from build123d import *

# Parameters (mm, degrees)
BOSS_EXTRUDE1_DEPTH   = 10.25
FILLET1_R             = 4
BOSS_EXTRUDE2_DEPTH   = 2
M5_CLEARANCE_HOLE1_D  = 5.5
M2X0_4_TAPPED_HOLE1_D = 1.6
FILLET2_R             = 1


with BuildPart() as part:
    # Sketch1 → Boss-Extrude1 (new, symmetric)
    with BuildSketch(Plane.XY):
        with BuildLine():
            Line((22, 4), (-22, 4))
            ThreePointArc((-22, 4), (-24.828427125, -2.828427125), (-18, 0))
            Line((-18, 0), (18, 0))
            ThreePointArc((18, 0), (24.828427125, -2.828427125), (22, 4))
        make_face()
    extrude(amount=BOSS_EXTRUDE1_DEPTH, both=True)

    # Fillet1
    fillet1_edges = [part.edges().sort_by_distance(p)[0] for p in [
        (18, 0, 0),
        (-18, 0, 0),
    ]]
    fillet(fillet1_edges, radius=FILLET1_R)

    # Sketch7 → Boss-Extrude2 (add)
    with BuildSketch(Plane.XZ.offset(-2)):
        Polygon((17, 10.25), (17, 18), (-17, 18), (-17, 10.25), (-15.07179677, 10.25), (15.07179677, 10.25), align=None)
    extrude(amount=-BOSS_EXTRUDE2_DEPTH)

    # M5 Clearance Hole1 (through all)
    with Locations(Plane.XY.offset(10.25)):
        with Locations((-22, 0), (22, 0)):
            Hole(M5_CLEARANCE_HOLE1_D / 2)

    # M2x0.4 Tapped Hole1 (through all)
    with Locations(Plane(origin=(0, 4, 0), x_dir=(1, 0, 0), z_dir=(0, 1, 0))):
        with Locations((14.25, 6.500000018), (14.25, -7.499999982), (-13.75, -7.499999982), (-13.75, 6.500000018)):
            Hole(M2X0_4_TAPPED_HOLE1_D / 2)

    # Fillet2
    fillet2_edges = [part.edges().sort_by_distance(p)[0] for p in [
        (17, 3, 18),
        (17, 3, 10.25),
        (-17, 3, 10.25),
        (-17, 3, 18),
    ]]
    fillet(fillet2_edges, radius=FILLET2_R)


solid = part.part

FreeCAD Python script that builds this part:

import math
import FreeCAD as App
import Part
import Sketcher

V = App.Vector
Q = App.Units.Quantity


def edges_at(feature, points):
    """Names of the edges that pass closest to the given points."""
    edges = feature.Shape.Edges
    near = lambda p: min(range(len(edges)), key=lambda i: edges[i].distToShape(Part.Vertex(*p))[0])
    return sorted({f"Edge{near(p) + 1}" for p in points})


def add_polygon(sketch, points):
    """Adds a closed chain of lines whose ends are joined by coincident constraints."""
    first, n = sketch.GeometryCount, len(points)
    for a, b in zip(points, points[1:] + points[:1]):
        sketch.addGeometry(Part.LineSegment(App.Vector(*a, 0), App.Vector(*b, 0)), False)
    for i in range(n):
        sketch.addConstraint(Sketcher.Constraint("Coincident", first + i, 2, first + (i + 1) % n, 1))

doc = App.newDocument("Part")
body = doc.addObject("PartDesign::Body", "Body")

sketch1 = body.newObject("Sketcher::SketchObject", "Sketch")
sketch1.AttachmentSupport = (doc.getObject("XY_Plane"), [""])
sketch1.MapMode = "FlatFace"
sketch1.addGeometry(Part.LineSegment(V(22, 4, 0), V(-22, 4, 0)), False)
sketch1.addGeometry(Part.ArcOfCircle(Part.Circle(V(-22, 0, 0), V(0, 0, 1), 4), math.radians(90), math.radians(360)), False)
sketch1.addGeometry(Part.LineSegment(V(-18, 0, 0), V(18, 0, 0)), False)
sketch1.addGeometry(Part.ArcOfCircle(Part.Circle(V(22, 0, 0), V(0, 0, 1), 4), math.radians(180), math.radians(450)), False)
sketch1.addConstraint(Sketcher.Constraint("Tangent", 0, 2, 1, 1))
sketch1.addConstraint(Sketcher.Constraint("Coincident", 1, 2, 2, 1))
sketch1.addConstraint(Sketcher.Constraint("Coincident", 2, 2, 3, 1))
sketch1.addConstraint(Sketcher.Constraint("Tangent", 3, 2, 0, 1))
sketch1.addConstraint(Sketcher.Constraint("Horizontal", 0))
sketch1.addConstraint(Sketcher.Constraint("Horizontal", 2))
sketch1.addConstraint(Sketcher.Constraint("Equal", 1, 3))
sketch1.addConstraint(Sketcher.Constraint("Symmetric", 1, 3, 3, 3, -1, 1))
sketch1.addConstraint(Sketcher.Constraint("PointOnObject", 1, 2, -1))
sketch1.addConstraint(Sketcher.Constraint("Radius", 1, Q("4 mm")))
sketch1.addConstraint(Sketcher.Constraint("DistanceX", 0, 2, 0, 1, Q("44 mm")))
pad1 = body.newObject("PartDesign::Pad", "Pad")
pad1.Profile = sketch1
pad1.Length = 20.5
pad1.Midplane = True
doc.recompute()

fillet = body.newObject("PartDesign::Fillet", "Fillet")
fillet.Base = (pad1, edges_at(pad1, [(18, 0, 0), (-18, 0, 0)]))
fillet.Radius = 4

sketch2 = body.newObject("Sketcher::SketchObject", "Sketch001")
sketch2.AttachmentSupport = (doc.getObject("XZ_Plane"), [""])
sketch2.MapMode = "FlatFace"
sketch2.AttachmentOffset = App.Placement(V(0, 0, -2), App.Rotation())
add_polygon(sketch2, [(17, 10), (17, 18), (-17, 18), (-17, 10)])
sketch2.addConstraint(Sketcher.Constraint("Vertical", 0))
sketch2.addConstraint(Sketcher.Constraint("Horizontal", 1))
sketch2.addConstraint(Sketcher.Constraint("Vertical", 2))
sketch2.addConstraint(Sketcher.Constraint("Horizontal", 3))
sketch2.addConstraint(Sketcher.Constraint("DistanceX", 1, 2, 1, 1, Q("34 mm")))
sketch2.addConstraint(Sketcher.Constraint("DistanceX", -1, 1, 0, 2, Q("17 mm")))
sketch2.addConstraint(Sketcher.Constraint("DistanceY", -1, 1, 0, 2, Q("18 mm")))
sketch2.addConstraint(Sketcher.Constraint("DistanceY", 0, 1, 0, 2, Q("7.75 mm")))
pad2 = body.newObject("PartDesign::Pad", "Pad001")
pad2.Profile = sketch2
pad2.Length = 2
pad2.Reversed = True

sketch3 = body.newObject("Sketcher::SketchObject", "Sketch002")
sketch3.AttachmentSupport = (doc.getObject("XY_Plane"), [""])
sketch3.MapMode = "FlatFace"
sketch3.AttachmentOffset = App.Placement(V(0, 0, 10.25), App.Rotation())
sketch3.addGeometry(Part.Circle(V(-22, 0, 0), V(0, 0, 1), 2.8), False)
sketch3.addGeometry(Part.Circle(V(22, 0, 0), V(0, 0, 1), 2.8), False)
sketch3.addConstraint(Sketcher.Constraint("Equal", 0, 1))
sketch3.addConstraint(Sketcher.Constraint("Symmetric", 0, 3, 1, 3, -1, 1))
sketch3.addConstraint(Sketcher.Constraint("PointOnObject", 0, 3, -1))
sketch3.addConstraint(Sketcher.Constraint("Diameter", 0, Q("5.5 mm")))
sketch3.addConstraint(Sketcher.Constraint("DistanceX", 0, 3, -1, 1, Q("22 mm")))
doc.recompute()
hole = body.newObject("PartDesign::Hole", "Hole")
hole.Profile = sketch3
hole.ThreadType = "None"
hole.Diameter = 5.5
hole.DepthType = "ThroughAll"

sketch4 = body.newObject("Sketcher::SketchObject", "Sketch003")
sketch4.AttachmentSupport = (doc.getObject("XZ_Plane"), [""])
sketch4.MapMode = "FlatFace"
sketch4.AttachmentOffset = App.Placement(V(0, 0, -4), App.Rotation())
sketch4.addGeometry(Part.Circle(V(14.2, -6.5, 0), V(0, 0, 1), 0.8), False)
sketch4.addGeometry(Part.Circle(V(14.2, 7.5, 0), V(0, 0, 1), 0.8), False)
sketch4.addGeometry(Part.Circle(V(-13.8, 7.5, 0), V(0, 0, 1), 0.8), False)
sketch4.addGeometry(Part.Circle(V(-13.8, -6.5, 0), V(0, 0, 1), 0.8), False)
sketch4.addConstraint(Sketcher.Constraint("Equal", 0, 1))
sketch4.addConstraint(Sketcher.Constraint("Equal", 1, 2))
sketch4.addConstraint(Sketcher.Constraint("Equal", 2, 3))
sketch4.addConstraint(Sketcher.Constraint("Horizontal", 1, 3, 2, 3))
sketch4.addConstraint(Sketcher.Constraint("Horizontal", 0, 3, 3, 3))
sketch4.addConstraint(Sketcher.Constraint("Vertical", 0, 3, 1, 3))
sketch4.addConstraint(Sketcher.Constraint("Vertical", 2, 3, 3, 3))
sketch4.addConstraint(Sketcher.Constraint("Diameter", 0, Q("1.6 mm")))
sketch4.addConstraint(Sketcher.Constraint("DistanceY", 0, 3, 1, 3, Q("14 mm")))
sketch4.addConstraint(Sketcher.Constraint("DistanceX", 2, 3, 1, 3, Q("28 mm")))
sketch4.addConstraint(Sketcher.Constraint("DistanceY", 0, 3, -1, 1, Q("6.5 mm")))
sketch4.addConstraint(Sketcher.Constraint("DistanceX", -1, 1, 0, 3, Q("14.25 mm")))
doc.recompute()
hole2 = body.newObject("PartDesign::Hole", "Hole001")
hole2.Profile = sketch4
hole2.ThreadType = "None"
hole2.Diameter = 1.6
hole2.DepthType = "ThroughAll"
hole2.Reversed = True
doc.recompute()

fillet2 = body.newObject("PartDesign::Fillet", "Fillet001")
fillet2.Base = (hole2, edges_at(hole2, [
    (17, 3, 18),
    (17, 3, 10.25),
    (-17, 3, 10.25),
    (-17, 3, 18),
]))
fillet2.Radius = 1

doc.recompute()
